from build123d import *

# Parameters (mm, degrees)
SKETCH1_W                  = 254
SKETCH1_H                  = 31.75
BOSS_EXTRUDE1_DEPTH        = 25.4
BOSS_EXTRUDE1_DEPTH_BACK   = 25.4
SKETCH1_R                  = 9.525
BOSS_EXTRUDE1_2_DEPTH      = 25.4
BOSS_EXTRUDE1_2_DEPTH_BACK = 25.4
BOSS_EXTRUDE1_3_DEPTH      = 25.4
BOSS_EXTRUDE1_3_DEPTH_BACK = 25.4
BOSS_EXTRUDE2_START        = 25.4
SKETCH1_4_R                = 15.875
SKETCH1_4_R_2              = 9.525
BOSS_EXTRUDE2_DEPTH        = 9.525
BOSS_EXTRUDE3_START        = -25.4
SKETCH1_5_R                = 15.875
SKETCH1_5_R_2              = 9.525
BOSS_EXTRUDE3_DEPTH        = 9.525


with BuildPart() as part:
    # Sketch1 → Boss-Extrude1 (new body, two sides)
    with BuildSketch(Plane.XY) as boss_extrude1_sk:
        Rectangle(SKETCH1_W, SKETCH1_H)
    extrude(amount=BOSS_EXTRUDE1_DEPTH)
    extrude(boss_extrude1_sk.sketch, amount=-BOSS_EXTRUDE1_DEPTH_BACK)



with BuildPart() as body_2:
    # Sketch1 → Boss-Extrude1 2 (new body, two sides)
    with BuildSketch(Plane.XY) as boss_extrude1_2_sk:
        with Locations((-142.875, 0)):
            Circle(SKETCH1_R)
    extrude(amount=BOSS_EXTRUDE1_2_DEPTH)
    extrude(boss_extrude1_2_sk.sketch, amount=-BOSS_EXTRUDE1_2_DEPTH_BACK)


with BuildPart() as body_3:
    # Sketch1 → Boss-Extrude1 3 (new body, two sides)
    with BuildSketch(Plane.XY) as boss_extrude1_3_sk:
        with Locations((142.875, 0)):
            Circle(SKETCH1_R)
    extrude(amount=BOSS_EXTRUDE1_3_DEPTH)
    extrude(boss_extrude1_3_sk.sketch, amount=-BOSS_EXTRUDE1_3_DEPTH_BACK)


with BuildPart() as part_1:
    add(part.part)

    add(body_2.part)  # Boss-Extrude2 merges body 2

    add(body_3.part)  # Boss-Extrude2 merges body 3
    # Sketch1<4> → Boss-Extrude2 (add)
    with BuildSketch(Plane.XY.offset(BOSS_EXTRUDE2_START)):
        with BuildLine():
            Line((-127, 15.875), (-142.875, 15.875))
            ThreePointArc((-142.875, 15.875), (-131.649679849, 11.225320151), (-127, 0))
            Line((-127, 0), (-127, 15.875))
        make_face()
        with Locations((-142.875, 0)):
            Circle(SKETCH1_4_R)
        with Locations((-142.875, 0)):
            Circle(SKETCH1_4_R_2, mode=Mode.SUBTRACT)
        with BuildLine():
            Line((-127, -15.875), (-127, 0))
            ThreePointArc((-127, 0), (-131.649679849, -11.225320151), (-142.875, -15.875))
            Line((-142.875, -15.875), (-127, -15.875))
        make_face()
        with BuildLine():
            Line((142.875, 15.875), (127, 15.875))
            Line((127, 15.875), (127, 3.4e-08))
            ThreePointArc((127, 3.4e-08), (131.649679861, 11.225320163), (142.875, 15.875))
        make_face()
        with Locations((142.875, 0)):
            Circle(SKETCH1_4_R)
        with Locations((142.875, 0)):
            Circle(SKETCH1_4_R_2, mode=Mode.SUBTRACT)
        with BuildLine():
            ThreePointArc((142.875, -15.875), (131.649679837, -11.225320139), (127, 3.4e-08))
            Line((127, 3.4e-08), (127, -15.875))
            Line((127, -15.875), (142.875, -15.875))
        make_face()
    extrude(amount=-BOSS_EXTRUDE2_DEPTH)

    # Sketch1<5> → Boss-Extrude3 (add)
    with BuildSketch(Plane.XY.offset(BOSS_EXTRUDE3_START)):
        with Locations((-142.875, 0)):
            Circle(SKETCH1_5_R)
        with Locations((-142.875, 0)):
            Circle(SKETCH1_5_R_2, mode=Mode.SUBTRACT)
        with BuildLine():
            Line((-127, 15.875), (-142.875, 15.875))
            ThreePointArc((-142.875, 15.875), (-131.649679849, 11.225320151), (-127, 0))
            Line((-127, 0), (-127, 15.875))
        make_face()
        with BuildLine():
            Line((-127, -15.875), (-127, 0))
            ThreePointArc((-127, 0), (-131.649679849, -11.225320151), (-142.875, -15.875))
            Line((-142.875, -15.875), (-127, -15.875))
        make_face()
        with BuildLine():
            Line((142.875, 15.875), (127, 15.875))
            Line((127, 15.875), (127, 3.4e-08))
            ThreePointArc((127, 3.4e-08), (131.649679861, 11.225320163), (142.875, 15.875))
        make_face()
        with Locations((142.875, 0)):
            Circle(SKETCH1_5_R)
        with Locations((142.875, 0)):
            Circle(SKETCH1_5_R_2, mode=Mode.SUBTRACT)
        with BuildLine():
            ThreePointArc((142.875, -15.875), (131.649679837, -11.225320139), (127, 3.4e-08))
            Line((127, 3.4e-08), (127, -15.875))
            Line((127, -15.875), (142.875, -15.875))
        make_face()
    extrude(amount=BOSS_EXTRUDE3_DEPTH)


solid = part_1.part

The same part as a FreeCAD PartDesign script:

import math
import FreeCAD as App
import Part
import Sketcher

V = App.Vector
Q = App.Units.Quantity

doc = App.newDocument("Part")
body = doc.addObject("PartDesign::Body", "Body")

# Sketch on XY plane
sketch1 = doc.addObject("Sketcher::SketchObject", "Sketch")
body.addObject(sketch1)
sketch1.AttachmentSupport = (doc.XY_Plane, [""])
sketch1.MapMode = "FlatFace"
sketch1.addGeometry([
    Part.LineSegment(V(-127, 16, 0), V(-127, -16, 0)),
    Part.LineSegment(V(-127, -16, 0), V(127, -16, 0)),
    Part.LineSegment(V(127, -16, 0), V(127, 16, 0)),
    Part.LineSegment(V(127, 16, 0), V(-127, 16, 0)),
], False)
sketch1.addConstraint([
    Sketcher.Constraint("Coincident", 0, 2, 1, 1),
    Sketcher.Constraint("Coincident", 1, 2, 2, 1),
    Sketcher.Constraint("Coincident", 2, 2, 3, 1),
    Sketcher.Constraint("Coincident", 3, 2, 0, 1),
    Sketcher.Constraint("Vertical", 0),
    Sketcher.Constraint("Horizontal", 1),
    Sketcher.Constraint("Vertical", 2),
    Sketcher.Constraint("Horizontal", 3),
    Sketcher.Constraint("Symmetric", 0, 2, 2, 2, -1, 1),
    Sketcher.Constraint("DistanceX", 1, 1, 1, 2, Q("10 in")),
    Sketcher.Constraint("DistanceY", 0, 2, 0, 1, Q("1.25 in")),
])
pad1 = doc.addObject("PartDesign::Pad", "Pad")
body.addObject(pad1)
pad1.Profile = sketch1
pad1.Type = "TwoLengths"
pad1.Length = Q("1 in")
pad1.Length2 = Q("1 in")
body2 = doc.addObject("PartDesign::Body", "Body001")

# Sketch on XY plane
sketch2 = doc.addObject("Sketcher::SketchObject", "Sketch001")
body2.addObject(sketch2)
sketch2.AttachmentSupport = (doc.getObject("XY_Plane001"), [""])
sketch2.MapMode = "FlatFace"
sketch2.addGeometry(Part.Circle(V(-143, 0, 0), V(0, 0, 1), 10), False)
sketch2.addConstraint([
    Sketcher.Constraint("PointOnObject", 0, 3, -1),
    Sketcher.Constraint("Diameter", 0, Q("0.75 in")),
    Sketcher.Constraint("DistanceX", 0, 3, -1, 1, Q("5.625 in")),
])
pad2 = doc.addObject("PartDesign::Pad", "Pad001")
body2.addObject(pad2)
pad2.Profile = sketch2
pad2.Type = "TwoLengths"
pad2.Length = Q("1 in")
pad2.Length2 = Q("1 in")
body3 = doc.addObject("PartDesign::Body", "Body002")

# Sketch on XY plane
sketch3 = doc.addObject("Sketcher::SketchObject", "Sketch002")
body3.addObject(sketch3)
sketch3.AttachmentSupport = (doc.getObject("XY_Plane002"), [""])
sketch3.MapMode = "FlatFace"
sketch3.addGeometry(Part.Circle(V(143, 0, 0), V(0, 0, 1), 10), False)
sketch3.addConstraint([
    Sketcher.Constraint("PointOnObject", 0, 3, -1),
    Sketcher.Constraint("Diameter", 0, Q("0.75 in")),
    Sketcher.Constraint("DistanceX", -1, 1, 0, 3, Q("5.625 in")),
])
pad3 = doc.addObject("PartDesign::Pad", "Pad002")
body3.addObject(pad3)
pad3.Profile = sketch3
pad3.Type = "TwoLengths"
pad3.Length = Q("1 in")
pad3.Length2 = Q("1 in")
body.AllowCompound = True
doc.recompute()

boolean = doc.addObject("PartDesign::Boolean", "Boolean")
body.addObject(boolean)
boolean.Type = "Fuse"
boolean.addObjects([body2])
doc.recompute()

boolean2 = doc.addObject("PartDesign::Boolean", "Boolean001")
body.addObject(boolean2)
boolean2.Type = "Fuse"
boolean2.addObjects([body3])

# Sketch on XY plane
sketch4 = doc.addObject("Sketcher::SketchObject", "Sketch003")
body.addObject(sketch4)
sketch4.AttachmentSupport = (doc.XY_Plane, [""])
sketch4.MapMode = "FlatFace"
sketch4.AttachmentOffset = App.Placement(V(0, 0, 1 * 25.4), App.Rotation())
sketch4.addGeometry([
    Part.LineSegment(V(-127, 16, 0), V(-143, 16, 0)),  # 0
    Part.ArcOfCircle(Part.Circle(V(-143, 0, 0), V(0, 0, 1), 16), math.radians(90), math.radians(270)),  # 1
    Part.LineSegment(V(-143, -16, 0), V(-127, -16, 0)),  # 2
    Part.LineSegment(V(-127, -16, 0), V(-127, 16, 0)),  # 3
    Part.Circle(V(-143, 0, 0), V(0, 0, 1), 10),  # 4
    Part.LineSegment(V(143, 16, 0), V(127, 16, 0)),  # 5
    Part.LineSegment(V(127, 16, 0), V(127, -16, 0)),  # 6
    Part.LineSegment(V(127, -16, 0), V(143, -16, 0)),  # 7
    Part.ArcOfCircle(Part.Circle(V(143, 0, 0), V(0, 0, 1), 16), math.radians(-90), math.radians(90)),  # 8
    Part.Circle(V(143, 0, 0), V(0, 0, 1), 10),  # 9
], False)
sketch4.addConstraint([
    Sketcher.Constraint("Tangent", 0, 2, 1, 1),
    Sketcher.Constraint("Tangent", 1, 2, 2, 1),
    Sketcher.Constraint("Coincident", 2, 2, 3, 1),
    Sketcher.Constraint("Coincident", 3, 2, 0, 1),
    Sketcher.Constraint("Coincident", 5, 2, 6, 1),
    Sketcher.Constraint("Coincident", 6, 2, 7, 1),
    Sketcher.Constraint("Tangent", 7, 2, 8, 1),
    Sketcher.Constraint("Tangent", 8, 2, 5, 1),
    Sketcher.Constraint("Horizontal", 0),
    Sketcher.Constraint("Horizontal", 2),
    Sketcher.Constraint("Vertical", 3),
    Sketcher.Constraint("Horizontal", 5),
    Sketcher.Constraint("Vertical", 6),
    Sketcher.Constraint("Horizontal", 7),
    Sketcher.Constraint("Coincident", 4, 3, 1, 3),
    Sketcher.Constraint("Coincident", 9, 3, 8, 3),
    Sketcher.Constraint("Equal", 1, 8),
    Sketcher.Constraint("Equal", 4, 9),
    Sketcher.Constraint("Symmetric", 1, 3, 8, 3, -1, 1),
    Sketcher.Constraint("Symmetric", 3, 2, 5, 2, -2),
    Sketcher.Constraint("Diameter", 4, Q("0.75 in")),
    Sketcher.Constraint("DistanceX", 2, 2, -1, 1, Q("5 in")),
    Sketcher.Constraint("Radius", 1, Q("0.625 in")),
    Sketcher.Constraint("DistanceX", 0, 2, 0, 1, Q("0.625 in")),
])
pad4 = doc.addObject("PartDesign::Pad", "Pad003")
body.addObject(pad4)
pad4.Profile = sketch4
pad4.Length = Q("0.375 in")
pad4.Reversed = True

# Sketch on XY plane
sketch5 = doc.addObject("Sketcher::SketchObject", "Sketch004")
body.addObject(sketch5)
sketch5.AttachmentSupport = (doc.XY_Plane, [""])
sketch5.MapMode = "FlatFace"
sketch5.AttachmentOffset = App.Placement(V(0, 0, -1 * 25.4), App.Rotation())
sketch5.addGeometry([
    Part.ArcOfCircle(Part.Circle(V(-143, 0, 0), V(0, 0, 1), 16), math.radians(90), math.radians(270)),  # 0
    Part.LineSegment(V(-143, -16, 0), V(-127, -16, 0)),  # 1
    Part.LineSegment(V(-127, -16, 0), V(-127, 16, 0)),  # 2
    Part.LineSegment(V(-127, 16, 0), V(-143, 16, 0)),  # 3
    Part.Circle(V(-143, 0, 0), V(0, 0, 1), 10),  # 4
    Part.LineSegment(V(143, 16, 0), V(127, 16, 0)),  # 5
    Part.LineSegment(V(127, 16, 0), V(127, -16, 0)),  # 6
    Part.LineSegment(V(127, -16, 0), V(143, -16, 0)),  # 7
    Part.ArcOfCircle(Part.Circle(V(143, 0, 0), V(0, 0, 1), 16), math.radians(-90), math.radians(90)),  # 8
    Part.Circle(V(143, 0, 0), V(0, 0, 1), 10),  # 9
], False)
sketch5.addConstraint([
    Sketcher.Constraint("Tangent", 0, 2, 1, 1),
    Sketcher.Constraint("Coincident", 1, 2, 2, 1),
    Sketcher.Constraint("Coincident", 2, 2, 3, 1),
    Sketcher.Constraint("Tangent", 3, 2, 0, 1),
    Sketcher.Constraint("Coincident", 5, 2, 6, 1),
    Sketcher.Constraint("Coincident", 6, 2, 7, 1),
    Sketcher.Constraint("Tangent", 7, 2, 8, 1),
    Sketcher.Constraint("Tangent", 8, 2, 5, 1),
    Sketcher.Constraint("Horizontal", 1),
    Sketcher.Constraint("Vertical", 2),
    Sketcher.Constraint("Horizontal", 3),
    Sketcher.Constraint("Horizontal", 5),
    Sketcher.Constraint("Vertical", 6),
    Sketcher.Constraint("Horizontal", 7),
    Sketcher.Constraint("Coincident", 4, 3, 0, 3),
    Sketcher.Constraint("Coincident", 9, 3, 8, 3),
    Sketcher.Constraint("Equal", 0, 8),
    Sketcher.Constraint("Equal", 4, 9),
    Sketcher.Constraint("Symmetric", 0, 3, 8, 3, -1, 1),
    Sketcher.Constraint("Symmetric", 2, 2, 5, 2, -2),
    Sketcher.Constraint("Diameter", 4, Q("0.75 in")),
    Sketcher.Constraint("DistanceX", 1, 2, -1, 1, Q("5 in")),
    Sketcher.Constraint("Radius", 0, Q("0.625 in")),
    Sketcher.Constraint("DistanceX", 1, 1, 1, 2, Q("0.625 in")),
])
pad5 = doc.addObject("PartDesign::Pad", "Pad004")
body.addObject(pad5)
pad5.Profile = sketch5
pad5.Length = Q("0.375 in")

doc.recompute()
